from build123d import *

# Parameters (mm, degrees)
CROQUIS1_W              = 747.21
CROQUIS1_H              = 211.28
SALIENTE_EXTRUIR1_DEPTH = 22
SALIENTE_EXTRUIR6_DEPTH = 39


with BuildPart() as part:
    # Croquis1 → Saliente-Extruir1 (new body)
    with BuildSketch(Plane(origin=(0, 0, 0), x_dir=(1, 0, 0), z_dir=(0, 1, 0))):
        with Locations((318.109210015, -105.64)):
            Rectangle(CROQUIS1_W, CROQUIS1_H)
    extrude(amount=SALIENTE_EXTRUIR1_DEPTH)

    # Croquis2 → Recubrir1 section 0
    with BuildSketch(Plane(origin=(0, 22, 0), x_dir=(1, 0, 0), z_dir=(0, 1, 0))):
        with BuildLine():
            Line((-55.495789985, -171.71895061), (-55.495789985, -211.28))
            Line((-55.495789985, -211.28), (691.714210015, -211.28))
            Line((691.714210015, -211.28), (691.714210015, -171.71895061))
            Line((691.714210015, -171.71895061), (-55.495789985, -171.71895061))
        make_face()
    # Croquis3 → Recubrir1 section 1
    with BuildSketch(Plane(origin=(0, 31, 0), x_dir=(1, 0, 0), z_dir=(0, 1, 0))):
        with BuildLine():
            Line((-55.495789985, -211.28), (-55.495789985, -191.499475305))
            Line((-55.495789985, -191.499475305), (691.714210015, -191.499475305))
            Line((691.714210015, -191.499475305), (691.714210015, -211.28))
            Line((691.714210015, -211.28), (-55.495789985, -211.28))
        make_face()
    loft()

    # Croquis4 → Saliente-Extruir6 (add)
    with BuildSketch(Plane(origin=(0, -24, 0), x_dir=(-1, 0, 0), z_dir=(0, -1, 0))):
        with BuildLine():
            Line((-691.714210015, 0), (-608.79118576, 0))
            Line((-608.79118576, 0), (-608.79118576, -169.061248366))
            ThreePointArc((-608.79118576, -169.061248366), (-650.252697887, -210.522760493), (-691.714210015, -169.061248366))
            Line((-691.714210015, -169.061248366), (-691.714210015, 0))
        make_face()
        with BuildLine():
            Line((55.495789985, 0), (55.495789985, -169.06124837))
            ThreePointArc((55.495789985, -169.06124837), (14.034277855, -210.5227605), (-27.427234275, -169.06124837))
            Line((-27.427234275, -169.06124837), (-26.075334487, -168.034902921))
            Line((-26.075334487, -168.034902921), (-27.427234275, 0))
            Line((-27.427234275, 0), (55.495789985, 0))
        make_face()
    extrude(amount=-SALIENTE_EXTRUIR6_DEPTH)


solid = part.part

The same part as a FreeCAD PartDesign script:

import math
import FreeCAD as App
import Part
import Sketcher

V = App.Vector
Q = App.Units.Quantity

doc = App.newDocument("Part")
params = doc.addObject("Spreadsheet::Sheet", "Params")
for row, (alias, value) in enumerate([
    ("sketch1_width", "747.21 mm"),
    ("sketch1_height", "211.28 mm"),
    ("pad1_length", "22 mm"),
    ("sketch2_width", "747.21 mm"),
    ("sketch3_width", "747.21 mm"),
    ("pad2_length", "39 mm"),
], start=1):
    params.set(f"A{row}", alias)
    params.set(f"B{row}", "=" + value)
    params.setAlias(f"B{row}", alias)

body = doc.addObject("PartDesign::Body", "Body")

sketch1 = body.newObject("Sketcher::SketchObject", "Sketch")
sketch1.AttachmentSupport = (doc.getObject("XZ_Plane"), [""])
sketch1.MapMode = "FlatFace"
sketch1.addGeometry([
    Part.LineSegment(V(-55.49579, 0, 0), V(-55.49579, 211.28, 0)),
    Part.LineSegment(V(-55.49579, 211.28, 0), V(691.71421, 211.28, 0)),
    Part.LineSegment(V(691.71421, 211.28, 0), V(691.71421, 0, 0)),
    Part.LineSegment(V(691.71421, 0, 0), V(-55.49579, 0, 0)),
], False)
sketch1.addConstraint([
    Sketcher.Constraint("Coincident", 0, 2, 1, 1),
    Sketcher.Constraint("Coincident", 1, 2, 2, 1),
    Sketcher.Constraint("Coincident", 2, 2, 3, 1),
    Sketcher.Constraint("Coincident", 3, 2, 0, 1),
    Sketcher.Constraint("Vertical", 0),
    Sketcher.Constraint("Horizontal", 1),
    Sketcher.Constraint("Vertical", 2),
    Sketcher.Constraint("Horizontal", 3),
    Sketcher.Constraint("PointOnObject", 2, 2, -1),
    Sketcher.Constraint("DistanceX", 1, 1, 1, 2, Q("747.21 mm")),
    Sketcher.Constraint("DistanceY", 0, 1, 0, 2, Q("211.28 mm")),
    Sketcher.Constraint("DistanceX", 0, 2, -1, 1, Q("55.49579 mm")),
])
sketch1.setExpression("Constraints[9]", "Params.sketch1_width")
sketch1.setExpression("Constraints[10]", "Params.sketch1_height")
pad1 = body.newObject("PartDesign::Pad", "Pad")
pad1.Profile = sketch1
pad1.setExpression("Length", "Params.pad1_length")
pad1.Reversed = True

sketch2 = body.newObject("Sketcher::SketchObject", "Sketch001")
sketch2.AttachmentSupport = (doc.getObject("XZ_Plane"), [""])
sketch2.MapMode = "FlatFace"
sketch2.AttachmentOffset = App.Placement(V(0, 0, -22), App.Rotation())
sketch2.addGeometry([
    Part.LineSegment(V(-55.49579, 171.718951, 0), V(-55.49579, 211.28, 0)),
    Part.LineSegment(V(-55.49579, 211.28, 0), V(691.71421, 211.28, 0)),
    Part.LineSegment(V(691.71421, 211.28, 0), V(691.71421, 171.718951, 0)),
    Part.LineSegment(V(691.71421, 171.718951, 0), V(-55.49579, 171.718951, 0)),
], False)
sketch2.addConstraint([
    Sketcher.Constraint("Coincident", 0, 2, 1, 1),
    Sketcher.Constraint("Coincident", 1, 2, 2, 1),
    Sketcher.Constraint("Coincident", 2, 2, 3, 1),
    Sketcher.Constraint("Coincident", 3, 2, 0, 1),
    Sketcher.Constraint("Vertical", 0),
    Sketcher.Constraint("Horizontal", 1),
    Sketcher.Constraint("Vertical", 2),
    Sketcher.Constraint("Horizontal", 3),
    Sketcher.Constraint("DistanceX", 1, 1, 1, 2, Q("747.21 mm")),
    Sketcher.Constraint("DistanceY", -1, 1, 0, 2, Q("211.28 mm")),
    Sketcher.Constraint("DistanceY", 0, 1, 0, 2, Q("39.561049 mm")),
    Sketcher.Constraint("DistanceX", 0, 2, -1, 1, Q("55.49579 mm")),
])
sketch2.setExpression("Constraints[8]", "Params.sketch2_width")

sketch3 = body.newObject("Sketcher::SketchObject", "Sketch002")
sketch3.AttachmentSupport = (doc.getObject("XZ_Plane"), [""])
sketch3.MapMode = "FlatFace"
sketch3.AttachmentOffset = App.Placement(V(0, 0, -31), App.Rotation())
sketch3.addGeometry([
    Part.LineSegment(V(-55.49579, 191.499475, 0), V(-55.49579, 211.28, 0)),
    Part.LineSegment(V(-55.49579, 211.28, 0), V(691.71421, 211.28, 0)),
    Part.LineSegment(V(691.71421, 211.28, 0), V(691.71421, 191.499475, 0)),
    Part.LineSegment(V(691.71421, 191.499475, 0), V(-55.49579, 191.499475, 0)),
], False)
sketch3.addConstraint([
    Sketcher.Constraint("Coincident", 0, 2, 1, 1),
    Sketcher.Constraint("Coincident", 1, 2, 2, 1),
    Sketcher.Constraint("Coincident", 2, 2, 3, 1),
    Sketcher.Constraint("Coincident", 3, 2, 0, 1),
    Sketcher.Constraint("Vertical", 0),
    Sketcher.Constraint("Horizontal", 1),
    Sketcher.Constraint("Vertical", 2),
    Sketcher.Constraint("Horizontal", 3),
    Sketcher.Constraint("DistanceX", 1, 1, 1, 2, Q("747.21 mm")),
    Sketcher.Constraint("DistanceY", -1, 1, 0, 2, Q("211.28 mm")),
    Sketcher.Constraint("DistanceY", 0, 1, 0, 2, Q("19.780525 mm")),
    Sketcher.Constraint("DistanceX", 0, 2, -1, 1, Q("55.49579 mm")),
])
sketch3.setExpression("Constraints[8]", "Params.sketch3_width")

additiveloft = body.newObject("PartDesign::AdditiveLoft", "AdditiveLoft")
additiveloft.Profile = sketch2
additiveloft.Sections = [sketch3]

sketch4 = body.newObject("Sketcher::SketchObject", "Sketch003")
sketch4.AttachmentSupport = (doc.getObject("XZ_Plane"), [""])
sketch4.MapMode = "FlatFace"
sketch4.AttachmentOffset = App.Placement(V(0, 0, 24), App.Rotation())
sketch4.addGeometry([
    Part.LineSegment(V(608.791186, 0, 0), V(691.71421, 0, 0)),
    Part.LineSegment(V(691.71421, 0, 0), V(691.71421, 169.061248, 0)),
    Part.ArcOfCircle(Part.Circle(V(650.252698, 169.061248, 0), V(0, 0, 1), 41.461512), math.radians(0), math.radians(180)),
    Part.LineSegment(V(608.791186, 169.061248, 0), V(608.791186, 0, 0)),
    Part.LineSegment(V(-55.49579, 169.061248, 0), V(-55.49579, 0, 0)),
    Part.LineSegment(V(-55.49579, 0, 0), V(27.427234, 0, 0)),
    Part.LineSegment(V(27.427234, 0, 0), V(26.075334, 168.034903, 0)),
    Part.LineSegment(V(26.075334, 168.034903, 0), V(27.427234, 169.061248, 0)),
    Part.ArcOfCircle(Part.Circle(V(-14.034278, 169.061248, 0), V(0, 0, 1), 41.461512), math.radians(0), math.radians(180)),
], False)
sketch4.addConstraint([
    Sketcher.Constraint("Coincident", 0, 2, 1, 1),
    Sketcher.Constraint("Tangent", 1, 2, 2, 1),
    Sketcher.Constraint("Tangent", 2, 2, 3, 1),
    Sketcher.Constraint("Coincident", 3, 2, 0, 1),
    Sketcher.Constraint("Coincident", 4, 2, 5, 1),
    Sketcher.Constraint("Coincident", 5, 2, 6, 1),
    Sketcher.Constraint("Coincident", 6, 2, 7, 1),
    Sketcher.Constraint("Coincident", 7, 2, 8, 1),
    Sketcher.Constraint("Tangent", 8, 2, 4, 1),
    Sketcher.Constraint("Horizontal", 0),
    Sketcher.Constraint("Vertical", 1),
    Sketcher.Constraint("Vertical", 3),
    Sketcher.Constraint("Vertical", 4),
    Sketcher.Constraint("Horizontal", 5),
    Sketcher.Constraint("Equal", 2, 8),
    Sketcher.Constraint("PointOnObject", 0, 2, -1),
    Sketcher.Constraint("PointOnObject", 4, 2, -1),
    Sketcher.Constraint("Horizontal", 2, 3, 8, 3),
    Sketcher.Constraint("Horizontal", 2, 2, 7, 2),
    Sketcher.Constraint("Vertical", 5, 2, 7, 2),
    Sketcher.Constraint("DistanceX", 4, 2, 0, 2, Q("747.21 mm")),
    Sketcher.Constraint("Radius", 2, Q("41.461512 mm")),
    Sketcher.Constraint("DistanceY", 1, 1, 1, 2, Q("169.061248 mm")),
    Sketcher.Constraint("DistanceX", 6, 2, 5, 2, Q("1.3519 mm")),
    Sketcher.Constraint("Distance", 6, Q("168.040341 mm")),
    Sketcher.Constraint("DistanceX", -1, 1, 0, 2, Q("691.71421 mm")),
])
pad2 = body.newObject("PartDesign::Pad", "Pad001")
pad2.Profile = sketch4
pad2.setExpression("Length", "Params.pad2_length")
pad2.Reversed = True

doc.recompute()
